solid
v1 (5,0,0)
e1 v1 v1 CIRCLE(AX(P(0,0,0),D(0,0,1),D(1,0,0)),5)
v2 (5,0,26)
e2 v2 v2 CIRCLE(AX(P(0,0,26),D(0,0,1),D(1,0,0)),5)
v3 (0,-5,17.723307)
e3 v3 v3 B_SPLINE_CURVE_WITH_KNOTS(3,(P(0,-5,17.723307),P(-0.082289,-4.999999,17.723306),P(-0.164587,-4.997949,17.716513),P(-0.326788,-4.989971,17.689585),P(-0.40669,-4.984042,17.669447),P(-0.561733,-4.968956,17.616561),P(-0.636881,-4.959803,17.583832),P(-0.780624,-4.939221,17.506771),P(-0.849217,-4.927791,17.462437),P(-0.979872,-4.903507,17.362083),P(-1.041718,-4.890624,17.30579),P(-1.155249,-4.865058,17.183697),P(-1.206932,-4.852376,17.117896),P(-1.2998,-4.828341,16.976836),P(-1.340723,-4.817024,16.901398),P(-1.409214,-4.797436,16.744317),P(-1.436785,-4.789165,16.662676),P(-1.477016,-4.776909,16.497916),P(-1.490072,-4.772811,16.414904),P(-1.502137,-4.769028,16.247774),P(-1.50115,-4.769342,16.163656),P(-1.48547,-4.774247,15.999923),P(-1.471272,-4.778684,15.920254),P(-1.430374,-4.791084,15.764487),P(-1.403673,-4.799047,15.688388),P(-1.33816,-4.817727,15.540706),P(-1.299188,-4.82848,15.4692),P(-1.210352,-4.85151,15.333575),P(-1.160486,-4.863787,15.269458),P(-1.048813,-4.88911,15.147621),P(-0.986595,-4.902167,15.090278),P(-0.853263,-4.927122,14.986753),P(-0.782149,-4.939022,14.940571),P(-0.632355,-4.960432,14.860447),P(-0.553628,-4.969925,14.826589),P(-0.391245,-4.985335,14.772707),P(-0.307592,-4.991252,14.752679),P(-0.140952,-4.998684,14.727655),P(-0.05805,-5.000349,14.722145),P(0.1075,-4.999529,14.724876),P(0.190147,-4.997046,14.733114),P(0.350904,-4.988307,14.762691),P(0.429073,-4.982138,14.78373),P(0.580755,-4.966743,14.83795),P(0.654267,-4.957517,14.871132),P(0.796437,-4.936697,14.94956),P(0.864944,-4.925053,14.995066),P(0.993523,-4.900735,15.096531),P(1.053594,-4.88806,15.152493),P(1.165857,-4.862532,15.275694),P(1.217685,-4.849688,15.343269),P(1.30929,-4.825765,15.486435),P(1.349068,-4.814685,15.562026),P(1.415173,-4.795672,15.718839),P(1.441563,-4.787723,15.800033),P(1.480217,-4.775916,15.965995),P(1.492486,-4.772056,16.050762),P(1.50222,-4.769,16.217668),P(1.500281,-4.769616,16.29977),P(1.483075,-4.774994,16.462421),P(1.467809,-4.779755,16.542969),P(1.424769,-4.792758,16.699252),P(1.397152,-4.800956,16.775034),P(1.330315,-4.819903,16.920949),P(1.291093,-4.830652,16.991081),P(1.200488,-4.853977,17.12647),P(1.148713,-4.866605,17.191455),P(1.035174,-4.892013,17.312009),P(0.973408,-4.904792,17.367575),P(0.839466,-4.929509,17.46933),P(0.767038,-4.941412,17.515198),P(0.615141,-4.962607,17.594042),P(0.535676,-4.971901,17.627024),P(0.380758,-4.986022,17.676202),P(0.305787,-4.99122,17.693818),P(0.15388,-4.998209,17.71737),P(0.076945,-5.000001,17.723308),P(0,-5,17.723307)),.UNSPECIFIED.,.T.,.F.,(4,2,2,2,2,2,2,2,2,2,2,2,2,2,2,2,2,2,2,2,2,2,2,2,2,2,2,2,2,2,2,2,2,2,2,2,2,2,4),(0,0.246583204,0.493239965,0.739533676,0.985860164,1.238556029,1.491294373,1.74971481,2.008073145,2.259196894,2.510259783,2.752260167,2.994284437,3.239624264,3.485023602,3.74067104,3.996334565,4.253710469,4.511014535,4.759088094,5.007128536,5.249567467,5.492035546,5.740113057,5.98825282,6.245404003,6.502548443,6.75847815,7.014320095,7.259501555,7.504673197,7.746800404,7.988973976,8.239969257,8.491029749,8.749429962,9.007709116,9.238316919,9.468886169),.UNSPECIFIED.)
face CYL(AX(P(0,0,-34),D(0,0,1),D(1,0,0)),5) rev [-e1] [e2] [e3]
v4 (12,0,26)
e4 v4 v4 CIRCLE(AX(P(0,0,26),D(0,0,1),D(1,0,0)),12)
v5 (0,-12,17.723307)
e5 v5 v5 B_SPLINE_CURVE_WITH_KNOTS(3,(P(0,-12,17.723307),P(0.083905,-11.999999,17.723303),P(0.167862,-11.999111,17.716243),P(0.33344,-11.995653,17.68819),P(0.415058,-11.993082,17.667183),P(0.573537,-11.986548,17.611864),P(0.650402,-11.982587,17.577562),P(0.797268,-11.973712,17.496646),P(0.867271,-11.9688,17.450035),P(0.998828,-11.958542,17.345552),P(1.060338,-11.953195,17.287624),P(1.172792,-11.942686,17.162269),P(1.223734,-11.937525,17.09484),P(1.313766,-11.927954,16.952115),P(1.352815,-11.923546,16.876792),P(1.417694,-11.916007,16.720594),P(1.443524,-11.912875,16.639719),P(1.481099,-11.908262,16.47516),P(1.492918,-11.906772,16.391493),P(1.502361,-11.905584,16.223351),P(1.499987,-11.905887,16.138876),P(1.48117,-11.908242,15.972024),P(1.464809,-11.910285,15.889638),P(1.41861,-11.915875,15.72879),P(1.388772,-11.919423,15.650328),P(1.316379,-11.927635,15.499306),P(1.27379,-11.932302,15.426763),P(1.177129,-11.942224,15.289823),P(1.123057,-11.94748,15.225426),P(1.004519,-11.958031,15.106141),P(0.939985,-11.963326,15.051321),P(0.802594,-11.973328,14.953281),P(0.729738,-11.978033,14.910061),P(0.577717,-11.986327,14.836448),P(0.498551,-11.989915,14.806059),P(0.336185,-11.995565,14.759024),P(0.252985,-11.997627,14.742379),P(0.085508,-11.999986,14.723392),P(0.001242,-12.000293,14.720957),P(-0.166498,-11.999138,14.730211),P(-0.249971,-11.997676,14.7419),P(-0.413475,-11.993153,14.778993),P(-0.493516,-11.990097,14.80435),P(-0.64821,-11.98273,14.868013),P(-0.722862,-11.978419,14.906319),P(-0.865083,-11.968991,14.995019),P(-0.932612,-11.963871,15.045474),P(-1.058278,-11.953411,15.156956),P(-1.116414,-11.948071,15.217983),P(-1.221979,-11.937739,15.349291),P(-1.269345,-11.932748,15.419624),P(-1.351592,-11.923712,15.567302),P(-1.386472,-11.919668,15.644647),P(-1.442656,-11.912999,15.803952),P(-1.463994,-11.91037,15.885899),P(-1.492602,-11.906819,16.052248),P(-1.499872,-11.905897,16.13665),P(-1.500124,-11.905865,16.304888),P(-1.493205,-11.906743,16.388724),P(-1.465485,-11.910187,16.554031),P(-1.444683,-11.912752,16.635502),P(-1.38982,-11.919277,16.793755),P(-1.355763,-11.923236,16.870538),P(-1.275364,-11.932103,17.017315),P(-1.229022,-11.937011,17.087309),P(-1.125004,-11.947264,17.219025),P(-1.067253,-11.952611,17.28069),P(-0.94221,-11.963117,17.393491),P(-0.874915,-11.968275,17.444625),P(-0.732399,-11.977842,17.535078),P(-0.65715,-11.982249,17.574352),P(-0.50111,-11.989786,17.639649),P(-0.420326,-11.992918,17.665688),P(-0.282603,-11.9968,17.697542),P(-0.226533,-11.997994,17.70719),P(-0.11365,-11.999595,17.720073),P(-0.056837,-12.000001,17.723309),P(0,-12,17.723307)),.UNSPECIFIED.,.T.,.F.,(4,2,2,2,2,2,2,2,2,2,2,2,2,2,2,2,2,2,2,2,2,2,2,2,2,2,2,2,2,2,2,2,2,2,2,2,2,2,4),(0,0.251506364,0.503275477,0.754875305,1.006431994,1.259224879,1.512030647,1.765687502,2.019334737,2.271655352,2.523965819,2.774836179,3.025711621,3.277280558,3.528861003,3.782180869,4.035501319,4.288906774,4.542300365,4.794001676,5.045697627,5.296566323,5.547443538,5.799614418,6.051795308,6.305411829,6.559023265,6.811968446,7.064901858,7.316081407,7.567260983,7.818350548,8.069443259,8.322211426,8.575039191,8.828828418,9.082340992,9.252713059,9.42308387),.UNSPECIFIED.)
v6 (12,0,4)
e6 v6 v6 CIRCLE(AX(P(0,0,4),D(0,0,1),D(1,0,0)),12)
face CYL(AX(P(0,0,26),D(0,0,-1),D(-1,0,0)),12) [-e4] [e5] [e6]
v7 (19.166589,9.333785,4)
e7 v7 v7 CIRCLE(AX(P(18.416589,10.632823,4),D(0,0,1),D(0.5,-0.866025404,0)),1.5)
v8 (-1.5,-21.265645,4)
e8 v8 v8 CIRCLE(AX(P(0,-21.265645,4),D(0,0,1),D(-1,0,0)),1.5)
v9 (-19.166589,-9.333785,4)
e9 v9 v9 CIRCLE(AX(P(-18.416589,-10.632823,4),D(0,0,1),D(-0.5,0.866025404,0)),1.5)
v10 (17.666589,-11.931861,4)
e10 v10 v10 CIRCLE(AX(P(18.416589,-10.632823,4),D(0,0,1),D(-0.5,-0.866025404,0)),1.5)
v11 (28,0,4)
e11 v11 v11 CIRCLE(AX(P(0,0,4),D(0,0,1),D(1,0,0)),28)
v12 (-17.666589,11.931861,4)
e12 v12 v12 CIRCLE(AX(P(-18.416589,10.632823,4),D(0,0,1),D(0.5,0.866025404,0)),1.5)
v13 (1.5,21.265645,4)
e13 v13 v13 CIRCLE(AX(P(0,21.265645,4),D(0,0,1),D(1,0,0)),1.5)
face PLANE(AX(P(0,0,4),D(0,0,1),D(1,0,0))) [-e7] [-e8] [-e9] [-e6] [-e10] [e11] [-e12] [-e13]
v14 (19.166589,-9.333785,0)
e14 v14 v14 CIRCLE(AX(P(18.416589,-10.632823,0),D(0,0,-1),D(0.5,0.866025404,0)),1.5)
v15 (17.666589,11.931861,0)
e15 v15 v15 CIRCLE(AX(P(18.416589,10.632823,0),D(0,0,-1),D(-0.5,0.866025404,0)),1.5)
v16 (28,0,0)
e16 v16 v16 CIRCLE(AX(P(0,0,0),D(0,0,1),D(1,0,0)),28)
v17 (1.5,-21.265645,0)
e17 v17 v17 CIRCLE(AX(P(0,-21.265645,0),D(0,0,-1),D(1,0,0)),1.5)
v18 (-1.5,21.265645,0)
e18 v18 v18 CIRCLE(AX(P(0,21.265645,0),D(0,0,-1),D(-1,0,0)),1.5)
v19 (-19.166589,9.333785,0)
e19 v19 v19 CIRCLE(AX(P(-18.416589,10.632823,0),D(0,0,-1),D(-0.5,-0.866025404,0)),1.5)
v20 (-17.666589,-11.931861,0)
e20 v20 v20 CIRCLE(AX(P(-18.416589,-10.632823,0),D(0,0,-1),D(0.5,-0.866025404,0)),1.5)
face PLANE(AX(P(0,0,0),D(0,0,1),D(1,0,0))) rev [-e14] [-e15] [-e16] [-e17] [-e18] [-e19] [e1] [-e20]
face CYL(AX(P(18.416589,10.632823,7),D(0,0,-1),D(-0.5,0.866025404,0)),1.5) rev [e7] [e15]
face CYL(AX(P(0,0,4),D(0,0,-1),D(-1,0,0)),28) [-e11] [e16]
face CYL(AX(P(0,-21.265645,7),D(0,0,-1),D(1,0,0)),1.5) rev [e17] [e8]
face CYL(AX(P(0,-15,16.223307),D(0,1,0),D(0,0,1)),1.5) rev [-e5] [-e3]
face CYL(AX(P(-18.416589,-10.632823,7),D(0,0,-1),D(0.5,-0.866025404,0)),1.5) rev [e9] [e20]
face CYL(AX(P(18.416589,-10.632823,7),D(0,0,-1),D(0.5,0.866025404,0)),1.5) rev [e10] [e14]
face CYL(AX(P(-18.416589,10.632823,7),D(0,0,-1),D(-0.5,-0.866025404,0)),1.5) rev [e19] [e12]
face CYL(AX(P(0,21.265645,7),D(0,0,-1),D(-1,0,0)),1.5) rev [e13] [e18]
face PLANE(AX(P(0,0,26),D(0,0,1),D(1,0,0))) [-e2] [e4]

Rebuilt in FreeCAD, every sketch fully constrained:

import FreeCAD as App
import Part
import Sketcher
Q = App.Units.Quantity

doc = App.newDocument("Part")
body = doc.addObject("PartDesign::Body", "Body")

# Sketch on XY plane
sketch1 = body.newObject("Sketcher::SketchObject", "Sketch")
sketch1.AttachmentSupport = (doc.getObject("XY_Plane"), [""])
sketch1.MapMode = "FlatFace"
sketch1.addGeometry(Part.Circle(App.Vector(0, 0, 0), App.Vector(0, 0, 1), 28), False)
sketch1.addConstraint(Sketcher.Constraint("Coincident", 0, 3, -1, 1))
sketch1.addConstraint(Sketcher.Constraint("Diameter", 0, Q("56 mm")))
pad1 = body.newObject("PartDesign::Pad", "Pad")
pad1.Profile = sketch1
pad1.Length = 4

# Sketch on XY plane
sketch2 = body.newObject("Sketcher::SketchObject", "Sketch001")
sketch2.AttachmentSupport = (doc.getObject("XY_Plane"), [""])
sketch2.MapMode = "FlatFace"
sketch2.AttachmentOffset = App.Placement(App.Vector(0, 0, 4), App.Rotation())
sketch2.addGeometry(Part.Circle(App.Vector(0, 0, 0), App.Vector(0, 0, 1), 12), False)
sketch2.addConstraint(Sketcher.Constraint("Coincident", 0, 3, -1, 1))
sketch2.addConstraint(Sketcher.Constraint("Diameter", 0, Q("24 mm")))
pad2 = body.newObject("PartDesign::Pad", "Pad001")
pad2.Profile = sketch2
pad2.Length = 22

# Sketch on XY plane
sketch3 = body.newObject("Sketcher::SketchObject", "Sketch002")
sketch3.AttachmentSupport = (doc.getObject("XY_Plane"), [""])
sketch3.MapMode = "FlatFace"
sketch3.AttachmentOffset = App.Placement(App.Vector(0, 0, 26), App.Rotation())
sketch3.addGeometry(Part.Circle(App.Vector(0, 0, 0), App.Vector(0, 0, 1), 5), False)
sketch3.addConstraint(Sketcher.Constraint("Coincident", 0, 3, -1, 1))
sketch3.addConstraint(Sketcher.Constraint("Diameter", 0, Q("10 mm")))
pocket1 = body.newObject("PartDesign::Pocket", "Pocket")
pocket1.Profile = sketch3
pocket1.Length = 60

# Sketch on XY plane
sketch4 = body.newObject("Sketcher::SketchObject", "Sketch003")
sketch4.AttachmentSupport = (doc.getObject("XY_Plane"), [""])
sketch4.MapMode = "FlatFace"
sketch4.addGeometry(Part.Circle(App.Vector(0, 21.3, 0), App.Vector(0, 0, 1), 1.5), False)
sketch4.addConstraint(Sketcher.Constraint("PointOnObject", 0, 3, -2))
sketch4.addConstraint(Sketcher.Constraint("Diameter", 0, Q("3 mm")))
sketch4.addConstraint(Sketcher.Constraint("DistanceY", -1, 1, 0, 3, Q("21.265645 mm")))
pocket2 = body.newObject("PartDesign::Pocket", "Pocket001")
pocket2.Profile = sketch4
pocket2.Length = 7
pocket2.Reversed = True
doc.recompute()

polarpattern = body.newObject("PartDesign::PolarPattern", "PolarPattern")
polarpattern.Originals = [pocket2]
polarpattern.Axis = (doc.getObject("Z_Axis"), [""])
polarpattern.Angle = 360
polarpattern.Occurrences = 6
body.Tip = polarpattern

# Sketch on XZ plane
sketch5 = body.newObject("Sketcher::SketchObject", "Sketch004")
sketch5.AttachmentSupport = (doc.getObject("XZ_Plane"), [""])
sketch5.MapMode = "FlatFace"
sketch5.addGeometry(Part.Circle(App.Vector(0, 16.2, 0), App.Vector(0, 0, 1), 1.5), False)
sketch5.addConstraint(Sketcher.Constraint("PointOnObject", 0, 3, -2))
sketch5.addConstraint(Sketcher.Constraint("Diameter", 0, Q("3 mm")))
sketch5.addConstraint(Sketcher.Constraint("DistanceY", -1, 1, 0, 3, Q("16.223307 mm")))
pocket3 = body.newObject("PartDesign::Pocket", "Pocket002")
pocket3.Profile = sketch5
pocket3.Length = 15
pocket3.Reversed = True

doc.recompute()
